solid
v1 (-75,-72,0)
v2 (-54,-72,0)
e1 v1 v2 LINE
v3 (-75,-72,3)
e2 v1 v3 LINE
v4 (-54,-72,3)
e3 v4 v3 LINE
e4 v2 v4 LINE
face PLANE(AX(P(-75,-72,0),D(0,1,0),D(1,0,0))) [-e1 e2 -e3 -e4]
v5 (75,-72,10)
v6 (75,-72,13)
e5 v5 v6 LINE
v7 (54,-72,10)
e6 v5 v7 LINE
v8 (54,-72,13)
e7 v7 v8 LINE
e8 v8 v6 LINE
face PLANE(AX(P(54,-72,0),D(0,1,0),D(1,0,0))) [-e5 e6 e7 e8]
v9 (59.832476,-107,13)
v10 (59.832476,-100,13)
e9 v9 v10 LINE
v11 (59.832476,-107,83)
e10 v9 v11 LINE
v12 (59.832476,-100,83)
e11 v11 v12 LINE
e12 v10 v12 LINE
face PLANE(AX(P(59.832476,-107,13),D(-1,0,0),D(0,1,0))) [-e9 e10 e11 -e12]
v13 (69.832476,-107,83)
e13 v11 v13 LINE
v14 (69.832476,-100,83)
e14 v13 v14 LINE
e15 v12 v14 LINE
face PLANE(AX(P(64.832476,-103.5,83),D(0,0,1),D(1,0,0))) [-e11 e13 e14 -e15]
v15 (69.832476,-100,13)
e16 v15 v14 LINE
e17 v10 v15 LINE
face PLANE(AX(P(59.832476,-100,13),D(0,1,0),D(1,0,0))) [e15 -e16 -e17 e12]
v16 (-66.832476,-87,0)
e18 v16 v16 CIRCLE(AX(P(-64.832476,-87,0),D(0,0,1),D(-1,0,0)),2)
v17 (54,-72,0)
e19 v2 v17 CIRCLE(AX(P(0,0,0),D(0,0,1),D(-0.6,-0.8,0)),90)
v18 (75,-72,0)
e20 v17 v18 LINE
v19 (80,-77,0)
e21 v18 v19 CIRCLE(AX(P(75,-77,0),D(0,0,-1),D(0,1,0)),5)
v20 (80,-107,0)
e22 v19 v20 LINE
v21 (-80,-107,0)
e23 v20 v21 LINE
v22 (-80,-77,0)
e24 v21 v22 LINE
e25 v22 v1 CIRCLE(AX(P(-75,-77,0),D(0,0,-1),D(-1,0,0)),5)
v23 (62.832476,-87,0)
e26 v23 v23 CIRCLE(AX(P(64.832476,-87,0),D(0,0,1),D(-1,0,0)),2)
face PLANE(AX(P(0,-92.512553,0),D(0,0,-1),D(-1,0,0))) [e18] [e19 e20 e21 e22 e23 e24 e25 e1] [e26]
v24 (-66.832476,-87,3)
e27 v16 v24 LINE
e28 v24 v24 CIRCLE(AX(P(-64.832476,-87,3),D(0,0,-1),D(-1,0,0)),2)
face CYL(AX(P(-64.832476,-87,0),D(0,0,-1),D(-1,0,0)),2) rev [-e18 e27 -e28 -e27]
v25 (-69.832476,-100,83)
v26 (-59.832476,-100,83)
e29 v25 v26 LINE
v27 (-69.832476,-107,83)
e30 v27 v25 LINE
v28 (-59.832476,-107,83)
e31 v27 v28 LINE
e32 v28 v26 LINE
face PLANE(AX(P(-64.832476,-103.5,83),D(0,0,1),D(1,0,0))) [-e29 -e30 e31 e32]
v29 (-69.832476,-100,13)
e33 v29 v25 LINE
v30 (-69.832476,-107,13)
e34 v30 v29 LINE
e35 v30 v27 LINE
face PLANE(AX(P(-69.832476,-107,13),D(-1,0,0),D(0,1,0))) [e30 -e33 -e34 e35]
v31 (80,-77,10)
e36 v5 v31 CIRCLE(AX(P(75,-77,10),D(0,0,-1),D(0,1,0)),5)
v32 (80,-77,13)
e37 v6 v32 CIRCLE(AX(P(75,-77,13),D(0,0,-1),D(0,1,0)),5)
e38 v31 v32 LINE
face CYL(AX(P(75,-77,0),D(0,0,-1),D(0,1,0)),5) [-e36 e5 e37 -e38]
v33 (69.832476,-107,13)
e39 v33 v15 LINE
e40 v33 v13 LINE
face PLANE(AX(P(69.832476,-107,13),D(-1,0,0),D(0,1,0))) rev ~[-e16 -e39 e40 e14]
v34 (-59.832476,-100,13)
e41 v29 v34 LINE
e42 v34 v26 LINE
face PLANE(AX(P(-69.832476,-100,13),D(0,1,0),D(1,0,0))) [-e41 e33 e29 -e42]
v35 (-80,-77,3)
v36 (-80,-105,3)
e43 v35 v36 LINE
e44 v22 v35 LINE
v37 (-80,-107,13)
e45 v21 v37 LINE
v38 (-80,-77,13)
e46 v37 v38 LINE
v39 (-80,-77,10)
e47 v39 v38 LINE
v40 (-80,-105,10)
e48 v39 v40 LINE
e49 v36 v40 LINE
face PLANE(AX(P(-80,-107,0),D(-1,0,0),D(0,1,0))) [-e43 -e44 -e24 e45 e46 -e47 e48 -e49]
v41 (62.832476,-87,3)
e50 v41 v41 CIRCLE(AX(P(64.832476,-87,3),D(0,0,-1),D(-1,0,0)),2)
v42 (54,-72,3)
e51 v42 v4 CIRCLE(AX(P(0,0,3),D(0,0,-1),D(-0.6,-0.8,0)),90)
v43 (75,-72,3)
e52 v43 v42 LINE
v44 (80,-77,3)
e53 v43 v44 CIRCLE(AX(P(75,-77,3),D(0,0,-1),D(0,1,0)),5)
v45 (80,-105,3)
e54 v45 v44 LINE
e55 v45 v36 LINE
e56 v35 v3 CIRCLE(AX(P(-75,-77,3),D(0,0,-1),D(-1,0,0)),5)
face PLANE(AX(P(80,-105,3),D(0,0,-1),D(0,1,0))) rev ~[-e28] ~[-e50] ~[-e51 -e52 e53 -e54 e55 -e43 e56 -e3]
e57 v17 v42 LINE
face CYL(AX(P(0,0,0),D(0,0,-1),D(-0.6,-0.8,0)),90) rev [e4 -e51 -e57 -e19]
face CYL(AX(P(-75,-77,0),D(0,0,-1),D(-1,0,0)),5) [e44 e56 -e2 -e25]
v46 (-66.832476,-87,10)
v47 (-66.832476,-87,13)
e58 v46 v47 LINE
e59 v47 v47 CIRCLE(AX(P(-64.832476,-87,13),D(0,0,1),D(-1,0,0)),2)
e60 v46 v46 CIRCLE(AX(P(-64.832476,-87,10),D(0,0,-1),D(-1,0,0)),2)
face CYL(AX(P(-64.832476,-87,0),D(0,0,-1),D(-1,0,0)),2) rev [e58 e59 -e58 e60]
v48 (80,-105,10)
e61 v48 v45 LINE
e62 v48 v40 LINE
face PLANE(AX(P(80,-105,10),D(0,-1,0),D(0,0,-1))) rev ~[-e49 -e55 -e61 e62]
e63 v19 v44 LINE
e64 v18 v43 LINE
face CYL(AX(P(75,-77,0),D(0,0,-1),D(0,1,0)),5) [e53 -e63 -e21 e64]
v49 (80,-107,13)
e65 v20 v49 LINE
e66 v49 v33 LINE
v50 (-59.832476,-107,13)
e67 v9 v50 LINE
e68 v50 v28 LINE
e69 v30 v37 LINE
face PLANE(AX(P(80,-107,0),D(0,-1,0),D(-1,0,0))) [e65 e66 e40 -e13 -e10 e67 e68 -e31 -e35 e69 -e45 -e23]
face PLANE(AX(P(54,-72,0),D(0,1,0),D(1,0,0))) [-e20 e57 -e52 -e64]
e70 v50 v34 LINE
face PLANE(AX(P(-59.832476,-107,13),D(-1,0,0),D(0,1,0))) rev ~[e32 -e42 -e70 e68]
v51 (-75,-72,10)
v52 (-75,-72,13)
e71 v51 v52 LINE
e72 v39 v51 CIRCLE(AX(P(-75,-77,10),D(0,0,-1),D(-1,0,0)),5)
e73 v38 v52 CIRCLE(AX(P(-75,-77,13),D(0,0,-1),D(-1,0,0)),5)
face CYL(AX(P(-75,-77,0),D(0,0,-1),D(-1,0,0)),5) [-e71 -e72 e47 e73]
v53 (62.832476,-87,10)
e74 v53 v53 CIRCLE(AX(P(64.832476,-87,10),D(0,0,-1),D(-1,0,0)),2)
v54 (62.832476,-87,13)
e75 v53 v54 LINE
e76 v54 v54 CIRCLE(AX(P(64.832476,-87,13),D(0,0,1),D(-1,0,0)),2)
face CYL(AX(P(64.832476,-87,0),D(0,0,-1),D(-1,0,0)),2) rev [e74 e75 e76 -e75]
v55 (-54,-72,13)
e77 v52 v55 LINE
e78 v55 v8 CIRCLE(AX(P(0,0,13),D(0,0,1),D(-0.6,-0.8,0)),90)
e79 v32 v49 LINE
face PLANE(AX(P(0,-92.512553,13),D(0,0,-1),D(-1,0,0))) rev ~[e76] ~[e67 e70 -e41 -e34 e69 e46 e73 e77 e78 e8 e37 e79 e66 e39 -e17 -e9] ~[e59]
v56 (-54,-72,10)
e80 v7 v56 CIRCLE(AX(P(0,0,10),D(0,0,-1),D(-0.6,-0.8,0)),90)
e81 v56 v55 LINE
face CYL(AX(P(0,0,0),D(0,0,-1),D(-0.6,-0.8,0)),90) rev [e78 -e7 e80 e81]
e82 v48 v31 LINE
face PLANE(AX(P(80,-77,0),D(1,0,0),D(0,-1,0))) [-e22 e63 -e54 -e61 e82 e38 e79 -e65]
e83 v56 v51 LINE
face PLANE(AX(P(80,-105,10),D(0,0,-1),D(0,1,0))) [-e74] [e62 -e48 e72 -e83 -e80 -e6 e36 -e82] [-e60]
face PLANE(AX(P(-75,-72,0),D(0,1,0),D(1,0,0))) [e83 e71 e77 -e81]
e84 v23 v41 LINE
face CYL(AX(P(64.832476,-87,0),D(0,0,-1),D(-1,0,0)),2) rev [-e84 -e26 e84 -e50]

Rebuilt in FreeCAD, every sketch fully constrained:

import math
import FreeCAD as App
import Part
import Sketcher


def add_polygon(sketch, points):
    """Adds a closed chain of lines whose ends are joined by coincident constraints."""
    first, n = sketch.GeometryCount, len(points)
    for a, b in zip(points, points[1:] + points[:1]):
        sketch.addGeometry(Part.LineSegment(App.Vector(*a, 0), App.Vector(*b, 0)), False)
    for i in range(n):
        sketch.addConstraint(Sketcher.Constraint("Coincident", first + i, 2, first + (i + 1) % n, 1))

doc = App.newDocument("Part")
body = doc.addObject("PartDesign::Body", "Body")

sketch1 = body.newObject("Sketcher::SketchObject", "Sketch")
sketch1.AttachmentSupport = (doc.getObject("XY_Plane"), [""])
sketch1.MapMode = "FlatFace"
sketch1.addGeometry([
    Part.LineSegment(App.Vector(75, -72, 0), App.Vector(54, -72, 0)),
    Part.ArcOfCircle(Part.Circle(App.Vector(0, 0, 0), App.Vector(0, 0, 1), 90), math.radians(-127), math.radians(-53)),
    Part.LineSegment(App.Vector(-54, -72, 0), App.Vector(-75, -72, 0)),
    Part.ArcOfCircle(Part.Circle(App.Vector(-75, -77, 0), App.Vector(0, 0, 1), 5), math.radians(90), math.radians(180)),
    Part.LineSegment(App.Vector(-80, -77, 0), App.Vector(-80, -107, 0)),
    Part.LineSegment(App.Vector(-80, -107, 0), App.Vector(80, -107, 0)),
    Part.LineSegment(App.Vector(80, -107, 0), App.Vector(80, -77, 0)),
    Part.ArcOfCircle(Part.Circle(App.Vector(75, -77, 0), App.Vector(0, 0, 1), 5), math.radians(0), math.radians(90)),
    Part.Circle(App.Vector(64.8, -87, 0), App.Vector(0, 0, 1), 2),
    Part.Circle(App.Vector(-64.8, -87, 0), App.Vector(0, 0, 1), 2),
], False)
sketch1.addConstraint([
    Sketcher.Constraint("Coincident", 0, 2, 1, 2),
    Sketcher.Constraint("Coincident", 1, 1, 2, 1),
    Sketcher.Constraint("Tangent", 2, 2, 3, 1),
    Sketcher.Constraint("Tangent", 3, 2, 4, 1),
    Sketcher.Constraint("Coincident", 4, 2, 5, 1),
    Sketcher.Constraint("Coincident", 5, 2, 6, 1),
    Sketcher.Constraint("Tangent", 6, 2, 7, 1),
    Sketcher.Constraint("Tangent", 7, 2, 0, 1),
    Sketcher.Constraint("Horizontal", 0),
    Sketcher.Constraint("Horizontal", 2),
    Sketcher.Constraint("Vertical", 4),
    Sketcher.Constraint("Horizontal", 5),
    Sketcher.Constraint("Vertical", 6),
    Sketcher.Constraint("Coincident", 1, 3, -1, 1),
    Sketcher.Constraint("Equal", 3, 7),
    Sketcher.Constraint("Equal", 8, 9),
    Sketcher.Constraint("Symmetric", 3, 3, 7, 3, -2),
    Sketcher.Constraint("Symmetric", 8, 3, 9, 3, -2),
    Sketcher.Constraint("Diameter", 8, 4.0),
    Sketcher.Constraint("Radius", 1, 90.0),
    Sketcher.Constraint("Radius", 3, 5.0),
    Sketcher.Constraint("DistanceX", 0, 2, 0, 1, 21.0),
    Sketcher.Constraint("DistanceX", 5, 1, 5, 2, 160.0),
    Sketcher.Constraint("DistanceY", 4, 2, 4, 1, 30.0),
    Sketcher.Constraint("DistanceY", 8, 3, -1, 1, 87.0),
    Sketcher.Constraint("DistanceX", -1, 1, 8, 3, 64.832476),
])
pad1 = body.newObject("PartDesign::Pad", "Pad")
pad1.Profile = sketch1
pad1.Length = 13

sketch2 = body.newObject("Sketcher::SketchObject", "Sketch001")
sketch2.AttachmentSupport = (doc.getObject("YZ_Plane"), [""])
sketch2.MapMode = "FlatFace"
sketch2.AttachmentOffset = App.Placement(App.Vector(0, 0, 80), App.Rotation())
add_polygon(sketch2, [(-70, 10), (-105, 10), (-105, 3), (-70, 3)])
sketch2.addConstraint([
    Sketcher.Constraint("Horizontal", 0),
    Sketcher.Constraint("Vertical", 1),
    Sketcher.Constraint("Horizontal", 2),
    Sketcher.Constraint("Vertical", 3),
    Sketcher.Constraint("DistanceY", 1, 2, 1, 1, 7.0),
    Sketcher.Constraint("DistanceX", 0, 2, -1, 1, 105.0),
    Sketcher.Constraint("DistanceY", -1, 1, 0, 2, 10.0),
    Sketcher.Constraint("DistanceX", 0, 2, 0, 1, 34.841384),
])
pocket1 = body.newObject("PartDesign::Pocket", "Pocket")
pocket1.Profile = sketch2
pocket1.Type = "ThroughAll"

sketch3 = body.newObject("Sketcher::SketchObject", "Sketch002")
sketch3.AttachmentSupport = (doc.getObject("XY_Plane"), [""])
sketch3.MapMode = "FlatFace"
sketch3.AttachmentOffset = App.Placement(App.Vector(0, 0, 13), App.Rotation())
add_polygon(sketch3, [(-70, -100), (-70, -107), (-60, -107), (-60, -100)])
add_polygon(sketch3, [(60, -100), (60, -107), (70, -107), (70, -100)])
sketch3.addConstraint([
    Sketcher.Constraint("Vertical", 0),
    Sketcher.Constraint("Horizontal", 1),
    Sketcher.Constraint("Vertical", 2),
    Sketcher.Constraint("Horizontal", 3),
    Sketcher.Constraint("Vertical", 4),
    Sketcher.Constraint("Horizontal", 5),
    Sketcher.Constraint("Vertical", 6),
    Sketcher.Constraint("Horizontal", 7),
    Sketcher.Constraint("Symmetric", 1, 2, 4, 2, -2),
    Sketcher.Constraint("Symmetric", 3, 2, 6, 2, -2),
    Sketcher.Constraint("DistanceX", 1, 1, 1, 2, 10.0),
    Sketcher.Constraint("DistanceY", 0, 2, 0, 1, 7.0),
    Sketcher.Constraint("DistanceY", 0, 2, -1, 1, 107.0),
    Sketcher.Constraint("DistanceX", 0, 2, -1, 1, 69.832476),
])
pad2 = body.newObject("PartDesign::Pad", "Pad001")
pad2.Profile = sketch3
pad2.Length = 70

doc.recompute()
